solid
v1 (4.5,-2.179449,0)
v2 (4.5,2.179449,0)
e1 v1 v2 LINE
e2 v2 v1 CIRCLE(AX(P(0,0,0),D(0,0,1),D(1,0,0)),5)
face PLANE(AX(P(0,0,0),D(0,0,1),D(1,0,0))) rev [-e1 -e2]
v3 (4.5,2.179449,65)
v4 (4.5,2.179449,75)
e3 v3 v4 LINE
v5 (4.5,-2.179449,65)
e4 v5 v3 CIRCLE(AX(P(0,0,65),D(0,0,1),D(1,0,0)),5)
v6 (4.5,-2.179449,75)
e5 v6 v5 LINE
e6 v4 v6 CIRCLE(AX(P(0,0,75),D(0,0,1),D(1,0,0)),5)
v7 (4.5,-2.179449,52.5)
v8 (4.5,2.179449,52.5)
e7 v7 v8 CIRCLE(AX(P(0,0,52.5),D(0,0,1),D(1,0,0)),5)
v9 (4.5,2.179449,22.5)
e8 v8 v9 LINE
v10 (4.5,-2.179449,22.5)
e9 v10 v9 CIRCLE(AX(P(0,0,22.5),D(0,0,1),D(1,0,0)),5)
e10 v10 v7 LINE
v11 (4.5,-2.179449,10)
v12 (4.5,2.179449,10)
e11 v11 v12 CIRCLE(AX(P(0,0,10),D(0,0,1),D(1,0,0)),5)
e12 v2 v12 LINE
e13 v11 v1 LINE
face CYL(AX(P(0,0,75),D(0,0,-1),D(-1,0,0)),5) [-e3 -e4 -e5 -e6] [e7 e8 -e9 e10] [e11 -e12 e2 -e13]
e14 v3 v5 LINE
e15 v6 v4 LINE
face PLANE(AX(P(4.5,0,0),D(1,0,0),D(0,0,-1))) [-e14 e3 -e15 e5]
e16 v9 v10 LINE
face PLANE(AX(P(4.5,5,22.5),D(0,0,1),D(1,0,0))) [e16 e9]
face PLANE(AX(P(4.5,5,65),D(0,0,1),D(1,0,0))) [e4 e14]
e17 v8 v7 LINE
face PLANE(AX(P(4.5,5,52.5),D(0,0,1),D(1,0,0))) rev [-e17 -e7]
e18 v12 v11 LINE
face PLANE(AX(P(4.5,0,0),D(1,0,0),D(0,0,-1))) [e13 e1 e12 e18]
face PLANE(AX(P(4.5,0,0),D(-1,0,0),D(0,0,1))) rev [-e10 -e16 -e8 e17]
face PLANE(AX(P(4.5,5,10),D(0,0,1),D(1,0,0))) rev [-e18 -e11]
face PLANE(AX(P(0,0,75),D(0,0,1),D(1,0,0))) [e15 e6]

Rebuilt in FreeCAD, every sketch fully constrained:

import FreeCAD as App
import Part
import Sketcher
Q = App.Units.Quantity

doc = App.newDocument("Part")
body = doc.addObject("PartDesign::Body", "Body")

# Sketch on XY plane
sketch1 = body.newObject("Sketcher::SketchObject", "Sketch")
sketch1.AttachmentSupport = (doc.getObject("XY_Plane"), [""])
sketch1.MapMode = "FlatFace"
sketch1.addGeometry(Part.Circle(App.Vector(0, 0, 0), App.Vector(0, 0, 1), 5), False)
sketch1.addConstraint([
    Sketcher.Constraint("Coincident", 0, 3, -1, 1),
    Sketcher.Constraint("Diameter", 0, Q("10 mm")),
])
pad1 = body.newObject("PartDesign::Pad", "Pad")
pad1.Profile = sketch1
pad1.Length = 75

# Sketch on YZ plane
sketch2 = body.newObject("Sketcher::SketchObject", "Sketch001")
sketch2.AttachmentSupport = (doc.getObject("YZ_Plane"), [""])
sketch2.MapMode = "FlatFace"
sketch2.AttachmentOffset = App.Placement(App.Vector(0, 0, 5), App.Rotation())
sketch2.addGeometry([
    Part.LineSegment(App.Vector(5, 52, 0), App.Vector(-5, 52, 0)),  # 0
    Part.LineSegment(App.Vector(-5, 52, 0), App.Vector(-5, 22, 0)),  # 1
    Part.LineSegment(App.Vector(-5, 22, 0), App.Vector(5, 22, 0)),  # 2
    Part.LineSegment(App.Vector(5, 22, 0), App.Vector(5, 52, 0)),  # 3
    Part.LineSegment(App.Vector(5, 75, 0), App.Vector(-5, 75, 0)),  # 4
    Part.LineSegment(App.Vector(-5, 75, 0), App.Vector(-5, 65, 0)),  # 5
    Part.LineSegment(App.Vector(-5, 65, 0), App.Vector(5, 65, 0)),  # 6
    Part.LineSegment(App.Vector(5, 65, 0), App.Vector(5, 75, 0)),  # 7
    Part.LineSegment(App.Vector(5, 10, 0), App.Vector(-5, 10, 0)),  # 8
    Part.LineSegment(App.Vector(-5, 10, 0), App.Vector(-5, 0, 0)),  # 9
    Part.LineSegment(App.Vector(-5, 0, 0), App.Vector(5, 0, 0)),  # 10
    Part.LineSegment(App.Vector(5, 0, 0), App.Vector(5, 10, 0)),  # 11
], False)
sketch2.addConstraint([
    Sketcher.Constraint("Coincident", 0, 2, 1, 1),
    Sketcher.Constraint("Coincident", 1, 2, 2, 1),
    Sketcher.Constraint("Coincident", 2, 2, 3, 1),
    Sketcher.Constraint("Coincident", 3, 2, 0, 1),
    Sketcher.Constraint("Coincident", 4, 2, 5, 1),
    Sketcher.Constraint("Coincident", 5, 2, 6, 1),
    Sketcher.Constraint("Coincident", 6, 2, 7, 1),
    Sketcher.Constraint("Coincident", 7, 2, 4, 1),
    Sketcher.Constraint("Coincident", 8, 2, 9, 1),
    Sketcher.Constraint("Coincident", 9, 2, 10, 1),
    Sketcher.Constraint("Coincident", 10, 2, 11, 1),
    Sketcher.Constraint("Coincident", 11, 2, 8, 1),
    Sketcher.Constraint("Horizontal", 0),
    Sketcher.Constraint("Vertical", 1),
    Sketcher.Constraint("Horizontal", 2),
    Sketcher.Constraint("Vertical", 3),
    Sketcher.Constraint("Horizontal", 4),
    Sketcher.Constraint("Vertical", 5),
    Sketcher.Constraint("Horizontal", 6),
    Sketcher.Constraint("Vertical", 7),
    Sketcher.Constraint("Horizontal", 8),
    Sketcher.Constraint("Vertical", 9),
    Sketcher.Constraint("Horizontal", 10),
    Sketcher.Constraint("Vertical", 11),
    Sketcher.Constraint("Symmetric", 9, 2, 10, 2, -1, 1),
    Sketcher.Constraint("Vertical", 1, 2, 4, 2),
    Sketcher.Constraint("Vertical", 3, 2, 6, 2),
    Sketcher.Constraint("Vertical", 5, 2, 8, 2),
    Sketcher.Constraint("Vertical", 7, 2, 10, 2),
    Sketcher.Constraint("Equal", 10, 5),
    Sketcher.Constraint("Equal", 7, 9),
    Sketcher.Constraint("DistanceX", 0, 2, 0, 1, Q("10 mm")),
    Sketcher.Constraint("DistanceY", 1, 2, 1, 1, Q("30 mm")),
    Sketcher.Constraint("DistanceY", -1, 1, 4, 2, Q("75 mm")),
    Sketcher.Constraint("DistanceY", -1, 1, 0, 2, Q("52.5 mm")),
])
pocket1 = body.newObject("PartDesign::Pocket", "Pocket")
pocket1.Profile = sketch2
pocket1.Length = 0.5

doc.recompute()
